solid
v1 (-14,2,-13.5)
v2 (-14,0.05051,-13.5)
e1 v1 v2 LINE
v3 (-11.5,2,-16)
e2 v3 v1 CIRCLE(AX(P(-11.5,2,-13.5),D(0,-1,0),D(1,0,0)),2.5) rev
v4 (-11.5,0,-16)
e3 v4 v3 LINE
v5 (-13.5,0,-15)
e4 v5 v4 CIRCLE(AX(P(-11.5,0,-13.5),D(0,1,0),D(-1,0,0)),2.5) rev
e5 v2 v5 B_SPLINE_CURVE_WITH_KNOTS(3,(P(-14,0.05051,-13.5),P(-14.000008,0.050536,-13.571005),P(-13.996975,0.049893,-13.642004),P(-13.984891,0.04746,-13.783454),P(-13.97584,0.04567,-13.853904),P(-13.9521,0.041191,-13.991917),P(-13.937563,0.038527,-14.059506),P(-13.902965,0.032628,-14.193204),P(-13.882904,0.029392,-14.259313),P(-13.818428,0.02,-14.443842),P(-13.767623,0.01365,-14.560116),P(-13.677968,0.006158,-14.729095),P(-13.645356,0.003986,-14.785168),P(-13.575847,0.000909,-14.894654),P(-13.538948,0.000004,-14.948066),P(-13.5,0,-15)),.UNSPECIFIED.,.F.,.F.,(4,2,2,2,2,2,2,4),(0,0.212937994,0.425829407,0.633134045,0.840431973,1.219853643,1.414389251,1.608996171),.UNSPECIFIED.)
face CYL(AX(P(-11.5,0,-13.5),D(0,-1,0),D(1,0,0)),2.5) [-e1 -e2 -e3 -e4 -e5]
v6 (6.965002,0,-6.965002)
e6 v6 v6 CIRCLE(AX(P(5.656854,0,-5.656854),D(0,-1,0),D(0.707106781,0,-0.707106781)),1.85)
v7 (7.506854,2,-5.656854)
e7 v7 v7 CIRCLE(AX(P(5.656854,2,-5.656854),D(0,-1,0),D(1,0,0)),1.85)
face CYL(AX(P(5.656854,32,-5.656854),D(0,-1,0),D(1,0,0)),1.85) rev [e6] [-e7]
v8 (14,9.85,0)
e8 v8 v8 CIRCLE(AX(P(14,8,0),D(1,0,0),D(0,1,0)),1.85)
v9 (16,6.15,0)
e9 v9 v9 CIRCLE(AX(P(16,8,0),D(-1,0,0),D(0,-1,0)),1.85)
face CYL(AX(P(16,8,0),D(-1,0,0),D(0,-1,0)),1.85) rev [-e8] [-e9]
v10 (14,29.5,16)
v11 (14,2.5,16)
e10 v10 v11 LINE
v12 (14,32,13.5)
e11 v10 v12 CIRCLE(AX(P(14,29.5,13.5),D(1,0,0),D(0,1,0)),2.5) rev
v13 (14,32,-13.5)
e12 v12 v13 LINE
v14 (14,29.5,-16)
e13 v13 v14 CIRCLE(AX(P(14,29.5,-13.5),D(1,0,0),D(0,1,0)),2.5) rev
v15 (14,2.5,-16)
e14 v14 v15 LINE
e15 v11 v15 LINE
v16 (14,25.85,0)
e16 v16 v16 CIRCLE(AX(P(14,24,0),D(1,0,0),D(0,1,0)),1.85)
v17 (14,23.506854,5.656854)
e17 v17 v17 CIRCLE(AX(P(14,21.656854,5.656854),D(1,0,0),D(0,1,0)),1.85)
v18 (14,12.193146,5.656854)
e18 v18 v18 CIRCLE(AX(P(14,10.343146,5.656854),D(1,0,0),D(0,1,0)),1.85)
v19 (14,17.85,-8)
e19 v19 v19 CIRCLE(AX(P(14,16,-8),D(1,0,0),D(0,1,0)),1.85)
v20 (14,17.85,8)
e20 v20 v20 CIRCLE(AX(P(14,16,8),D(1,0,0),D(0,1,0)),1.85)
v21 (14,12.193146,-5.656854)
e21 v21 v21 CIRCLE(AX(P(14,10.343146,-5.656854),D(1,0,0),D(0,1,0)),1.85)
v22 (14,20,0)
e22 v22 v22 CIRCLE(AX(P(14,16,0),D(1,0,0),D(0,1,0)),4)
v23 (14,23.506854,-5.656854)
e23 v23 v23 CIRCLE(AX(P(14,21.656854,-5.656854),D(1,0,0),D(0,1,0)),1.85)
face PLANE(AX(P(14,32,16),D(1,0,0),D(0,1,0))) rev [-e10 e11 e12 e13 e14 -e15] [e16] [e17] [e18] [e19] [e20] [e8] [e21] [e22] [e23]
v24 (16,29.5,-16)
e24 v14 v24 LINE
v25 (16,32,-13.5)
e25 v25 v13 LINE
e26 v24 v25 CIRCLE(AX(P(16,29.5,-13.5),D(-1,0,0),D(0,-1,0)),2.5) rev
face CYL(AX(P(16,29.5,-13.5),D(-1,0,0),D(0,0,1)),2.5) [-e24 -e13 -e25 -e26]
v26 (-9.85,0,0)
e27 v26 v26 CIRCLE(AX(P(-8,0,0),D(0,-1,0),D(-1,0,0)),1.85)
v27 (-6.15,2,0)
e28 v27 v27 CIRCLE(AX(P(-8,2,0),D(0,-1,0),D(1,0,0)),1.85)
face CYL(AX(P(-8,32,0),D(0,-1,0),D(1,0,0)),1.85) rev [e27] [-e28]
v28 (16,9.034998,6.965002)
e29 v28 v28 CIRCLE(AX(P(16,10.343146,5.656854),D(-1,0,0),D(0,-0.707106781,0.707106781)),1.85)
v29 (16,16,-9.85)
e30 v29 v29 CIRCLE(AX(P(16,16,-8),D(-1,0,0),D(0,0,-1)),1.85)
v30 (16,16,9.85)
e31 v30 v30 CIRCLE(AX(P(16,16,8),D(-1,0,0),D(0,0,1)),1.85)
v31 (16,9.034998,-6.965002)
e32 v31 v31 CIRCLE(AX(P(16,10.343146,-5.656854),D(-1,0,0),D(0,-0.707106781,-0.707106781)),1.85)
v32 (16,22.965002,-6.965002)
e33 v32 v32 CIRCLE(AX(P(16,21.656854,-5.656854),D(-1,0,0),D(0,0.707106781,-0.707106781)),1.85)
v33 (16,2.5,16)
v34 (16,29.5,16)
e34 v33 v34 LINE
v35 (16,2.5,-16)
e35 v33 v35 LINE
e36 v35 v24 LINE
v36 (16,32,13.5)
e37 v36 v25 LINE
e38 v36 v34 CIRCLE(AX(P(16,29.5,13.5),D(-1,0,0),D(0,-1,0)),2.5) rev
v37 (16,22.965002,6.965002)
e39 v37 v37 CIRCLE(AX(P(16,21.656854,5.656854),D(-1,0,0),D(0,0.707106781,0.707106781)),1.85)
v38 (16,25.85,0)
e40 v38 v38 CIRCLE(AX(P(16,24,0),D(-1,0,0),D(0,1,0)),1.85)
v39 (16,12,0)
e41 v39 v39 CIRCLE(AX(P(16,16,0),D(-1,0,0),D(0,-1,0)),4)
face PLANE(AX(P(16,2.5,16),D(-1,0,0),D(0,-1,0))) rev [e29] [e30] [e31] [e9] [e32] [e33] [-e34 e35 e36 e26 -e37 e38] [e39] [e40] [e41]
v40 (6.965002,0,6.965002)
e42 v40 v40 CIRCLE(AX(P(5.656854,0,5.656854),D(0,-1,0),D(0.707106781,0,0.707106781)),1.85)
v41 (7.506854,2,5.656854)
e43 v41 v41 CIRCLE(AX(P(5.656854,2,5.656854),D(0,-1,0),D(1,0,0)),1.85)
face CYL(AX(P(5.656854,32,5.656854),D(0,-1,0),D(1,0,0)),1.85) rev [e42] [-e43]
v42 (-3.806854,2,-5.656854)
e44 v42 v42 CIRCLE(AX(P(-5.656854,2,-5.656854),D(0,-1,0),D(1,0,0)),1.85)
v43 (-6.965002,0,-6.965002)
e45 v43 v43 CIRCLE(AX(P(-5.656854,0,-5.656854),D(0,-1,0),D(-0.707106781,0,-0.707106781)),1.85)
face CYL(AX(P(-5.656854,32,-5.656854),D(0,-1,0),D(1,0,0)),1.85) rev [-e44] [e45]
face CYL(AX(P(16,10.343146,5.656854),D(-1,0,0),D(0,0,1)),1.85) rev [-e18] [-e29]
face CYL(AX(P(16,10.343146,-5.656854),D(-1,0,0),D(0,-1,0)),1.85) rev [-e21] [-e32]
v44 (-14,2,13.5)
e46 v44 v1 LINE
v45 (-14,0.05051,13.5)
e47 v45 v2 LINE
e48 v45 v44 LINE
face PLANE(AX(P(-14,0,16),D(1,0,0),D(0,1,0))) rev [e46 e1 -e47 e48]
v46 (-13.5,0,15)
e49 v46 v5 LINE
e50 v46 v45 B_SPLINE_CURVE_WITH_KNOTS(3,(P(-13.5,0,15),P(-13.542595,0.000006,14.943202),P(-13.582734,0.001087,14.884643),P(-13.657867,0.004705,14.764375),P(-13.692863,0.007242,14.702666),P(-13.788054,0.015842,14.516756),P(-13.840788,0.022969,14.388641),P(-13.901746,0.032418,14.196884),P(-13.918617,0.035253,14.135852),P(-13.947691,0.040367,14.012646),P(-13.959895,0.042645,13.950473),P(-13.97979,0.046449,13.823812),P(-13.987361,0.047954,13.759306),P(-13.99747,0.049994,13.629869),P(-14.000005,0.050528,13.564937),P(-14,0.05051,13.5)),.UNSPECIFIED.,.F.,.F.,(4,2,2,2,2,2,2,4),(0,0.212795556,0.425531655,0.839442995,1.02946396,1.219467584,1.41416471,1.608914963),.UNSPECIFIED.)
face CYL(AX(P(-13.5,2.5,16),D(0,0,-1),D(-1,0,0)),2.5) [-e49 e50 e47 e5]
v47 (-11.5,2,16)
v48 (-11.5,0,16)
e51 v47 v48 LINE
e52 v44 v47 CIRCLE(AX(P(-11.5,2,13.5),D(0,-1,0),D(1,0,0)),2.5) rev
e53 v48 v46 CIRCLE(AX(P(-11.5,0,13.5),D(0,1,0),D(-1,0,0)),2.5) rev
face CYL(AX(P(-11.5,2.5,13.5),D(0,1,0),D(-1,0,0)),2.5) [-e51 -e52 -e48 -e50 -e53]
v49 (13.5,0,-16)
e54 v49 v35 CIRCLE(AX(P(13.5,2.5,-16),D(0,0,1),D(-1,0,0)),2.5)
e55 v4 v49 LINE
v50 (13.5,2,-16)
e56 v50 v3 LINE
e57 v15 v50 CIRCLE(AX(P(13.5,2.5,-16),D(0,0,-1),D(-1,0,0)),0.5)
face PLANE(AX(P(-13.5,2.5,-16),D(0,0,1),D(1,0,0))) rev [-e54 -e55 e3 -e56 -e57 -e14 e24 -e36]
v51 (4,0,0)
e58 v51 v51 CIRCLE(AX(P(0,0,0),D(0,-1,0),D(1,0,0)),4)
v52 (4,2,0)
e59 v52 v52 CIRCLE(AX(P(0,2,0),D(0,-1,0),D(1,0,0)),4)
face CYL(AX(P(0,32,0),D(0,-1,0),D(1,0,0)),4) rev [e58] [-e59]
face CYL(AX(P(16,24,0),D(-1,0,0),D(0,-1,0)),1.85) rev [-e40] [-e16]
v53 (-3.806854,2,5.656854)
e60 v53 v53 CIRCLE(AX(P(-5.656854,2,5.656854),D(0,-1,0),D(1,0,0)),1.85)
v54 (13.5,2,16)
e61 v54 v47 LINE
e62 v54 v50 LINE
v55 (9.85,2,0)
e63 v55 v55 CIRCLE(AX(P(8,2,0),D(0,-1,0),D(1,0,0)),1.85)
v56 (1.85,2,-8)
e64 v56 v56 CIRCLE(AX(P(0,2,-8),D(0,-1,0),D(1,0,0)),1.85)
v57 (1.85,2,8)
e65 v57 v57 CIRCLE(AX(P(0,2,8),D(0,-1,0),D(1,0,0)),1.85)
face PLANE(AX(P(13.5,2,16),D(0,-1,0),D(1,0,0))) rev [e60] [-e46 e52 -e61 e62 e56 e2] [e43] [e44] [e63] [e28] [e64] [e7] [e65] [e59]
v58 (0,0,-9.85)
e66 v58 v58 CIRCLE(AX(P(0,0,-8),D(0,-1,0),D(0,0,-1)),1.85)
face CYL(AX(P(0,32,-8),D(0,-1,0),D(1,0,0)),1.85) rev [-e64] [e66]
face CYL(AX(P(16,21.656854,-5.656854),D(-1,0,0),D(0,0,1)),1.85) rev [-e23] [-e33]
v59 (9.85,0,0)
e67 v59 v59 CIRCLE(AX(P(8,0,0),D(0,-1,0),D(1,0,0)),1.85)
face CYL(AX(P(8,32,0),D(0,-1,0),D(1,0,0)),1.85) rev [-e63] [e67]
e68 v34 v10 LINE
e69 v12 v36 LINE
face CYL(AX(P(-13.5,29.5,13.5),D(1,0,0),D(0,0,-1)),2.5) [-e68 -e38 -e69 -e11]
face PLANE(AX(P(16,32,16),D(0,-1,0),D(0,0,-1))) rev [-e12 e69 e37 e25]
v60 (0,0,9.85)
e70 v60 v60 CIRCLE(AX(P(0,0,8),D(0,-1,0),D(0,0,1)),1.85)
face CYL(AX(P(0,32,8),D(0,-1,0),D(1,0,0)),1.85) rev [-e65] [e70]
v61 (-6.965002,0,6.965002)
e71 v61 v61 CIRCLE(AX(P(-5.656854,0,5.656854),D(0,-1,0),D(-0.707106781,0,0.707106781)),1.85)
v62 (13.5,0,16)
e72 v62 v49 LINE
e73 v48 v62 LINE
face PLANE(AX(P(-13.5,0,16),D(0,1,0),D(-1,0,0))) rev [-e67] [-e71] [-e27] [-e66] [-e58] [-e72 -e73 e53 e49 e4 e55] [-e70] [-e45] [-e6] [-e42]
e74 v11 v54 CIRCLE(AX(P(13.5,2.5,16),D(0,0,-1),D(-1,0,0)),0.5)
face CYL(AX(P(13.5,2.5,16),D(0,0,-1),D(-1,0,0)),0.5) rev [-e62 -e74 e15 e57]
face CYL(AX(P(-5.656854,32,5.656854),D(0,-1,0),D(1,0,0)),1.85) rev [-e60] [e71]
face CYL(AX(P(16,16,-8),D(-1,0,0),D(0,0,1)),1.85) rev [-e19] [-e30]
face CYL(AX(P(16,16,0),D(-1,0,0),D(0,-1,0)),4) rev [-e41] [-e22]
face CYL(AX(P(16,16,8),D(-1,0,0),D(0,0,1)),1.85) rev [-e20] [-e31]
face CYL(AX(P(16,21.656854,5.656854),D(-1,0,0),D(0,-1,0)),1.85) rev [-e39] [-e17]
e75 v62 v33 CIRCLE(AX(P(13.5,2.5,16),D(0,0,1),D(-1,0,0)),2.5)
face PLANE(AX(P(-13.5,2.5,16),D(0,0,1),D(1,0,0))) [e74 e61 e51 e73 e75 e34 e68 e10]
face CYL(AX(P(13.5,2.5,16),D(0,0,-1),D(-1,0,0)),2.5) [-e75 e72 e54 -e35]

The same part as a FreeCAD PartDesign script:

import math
import FreeCAD as App
import Part
import Sketcher

V = App.Vector
Q = App.Units.Quantity


def edges_at(feature, points):
    """Names of the edges that pass closest to the given points."""
    edges = feature.Shape.Edges
    near = lambda p: min(range(len(edges)), key=lambda i: edges[i].distToShape(Part.Vertex(*p))[0])
    return sorted({f"Edge{near(p) + 1}" for p in points})


def add_polygon(sketch, points):
    """Adds a closed chain of lines whose ends are joined by coincident constraints."""
    first, n = sketch.GeometryCount, len(points)
    for a, b in zip(points, points[1:] + points[:1]):
        sketch.addGeometry(Part.LineSegment(App.Vector(*a, 0), App.Vector(*b, 0)), False)
    for i in range(n):
        sketch.addConstraint(Sketcher.Constraint("Coincident", first + i, 2, first + (i + 1) % n, 1))

doc = App.newDocument("Part")
body = doc.addObject("PartDesign::Body", "Body")

# Sketch on XY plane
sketch1 = body.newObject("Sketcher::SketchObject", "Sketch")
sketch1.AttachmentSupport = (doc.getObject("XY_Plane"), [""])
sketch1.MapMode = "FlatFace"
sketch1.addGeometry(Part.LineSegment(V(-13.5, 0, 0), V(13.5, 0, 0)), False)
sketch1.addGeometry(Part.ArcOfCircle(Part.Circle(V(13.5, 2.5, 0), V(0, 0, 1), 2.5), math.radians(-90), math.radians(0)), False)
sketch1.addGeometry(Part.LineSegment(V(16, 2.5, 0), V(16, 32, 0)), False)
sketch1.addGeometry(Part.LineSegment(V(16, 32, 0), V(14, 32, 0)), False)
sketch1.addGeometry(Part.LineSegment(V(14, 32, 0), V(14, 2.5, 0)), False)
sketch1.addGeometry(Part.ArcOfCircle(Part.Circle(V(13.5, 2.5, 0), V(0, 0, 1), 0.5), math.radians(-90), math.radians(0)), False)
sketch1.addGeometry(Part.LineSegment(V(13.5, 2, 0), V(-13.5, 2, 0)), False)
sketch1.addGeometry(Part.ArcOfCircle(Part.Circle(V(-13.5, 2.5, 0), V(0, 0, 1), 0.5), math.radians(180), math.radians(270)), False)
sketch1.addGeometry(Part.LineSegment(V(-14, 2.5, 0), V(-14, 32, 0)), False)
sketch1.addGeometry(Part.LineSegment(V(-14, 32, 0), V(-16, 32, 0)), False)
sketch1.addGeometry(Part.LineSegment(V(-16, 32, 0), V(-16, 2.5, 0)), False)
sketch1.addGeometry(Part.ArcOfCircle(Part.Circle(V(-13.5, 2.5, 0), V(0, 0, 1), 2.5), math.radians(180), math.radians(270)), False)
sketch1.addConstraint(Sketcher.Constraint("Tangent", 0, 2, 1, 1))
sketch1.addConstraint(Sketcher.Constraint("Tangent", 1, 2, 2, 1))
sketch1.addConstraint(Sketcher.Constraint("Coincident", 2, 2, 3, 1))
sketch1.addConstraint(Sketcher.Constraint("Coincident", 3, 2, 4, 1))
sketch1.addConstraint(Sketcher.Constraint("Tangent", 4, 2, 5, 2))
sketch1.addConstraint(Sketcher.Constraint("Tangent", 5, 1, 6, 1))
sketch1.addConstraint(Sketcher.Constraint("Tangent", 6, 2, 7, 2))
sketch1.addConstraint(Sketcher.Constraint("Tangent", 7, 1, 8, 1))
sketch1.addConstraint(Sketcher.Constraint("Coincident", 8, 2, 9, 1))
sketch1.addConstraint(Sketcher.Constraint("Coincident", 9, 2, 10, 1))
sketch1.addConstraint(Sketcher.Constraint("Tangent", 10, 2, 11, 1))
sketch1.addConstraint(Sketcher.Constraint("Tangent", 11, 2, 0, 1))
sketch1.addConstraint(Sketcher.Constraint("Horizontal", 0))
sketch1.addConstraint(Sketcher.Constraint("Vertical", 2))
sketch1.addConstraint(Sketcher.Constraint("Horizontal", 3))
sketch1.addConstraint(Sketcher.Constraint("Vertical", 4))
sketch1.addConstraint(Sketcher.Constraint("Horizontal", 6))
sketch1.addConstraint(Sketcher.Constraint("Vertical", 8))
sketch1.addConstraint(Sketcher.Constraint("Horizontal", 9))
sketch1.addConstraint(Sketcher.Constraint("Vertical", 10))
sketch1.addConstraint(Sketcher.Constraint("Coincident", 5, 3, 1, 3))
sketch1.addConstraint(Sketcher.Constraint("Coincident", 11, 3, 7, 3))
sketch1.addConstraint(Sketcher.Constraint("Equal", 5, 7))
sketch1.addConstraint(Sketcher.Constraint("Symmetric", 0, 2, 11, 2, -1, 1))
sketch1.addConstraint(Sketcher.Constraint("Horizontal", 3, 2, 8, 2))
sketch1.addConstraint(Sketcher.Constraint("Radius", 1, Q("2.5 mm")))
sketch1.addConstraint(Sketcher.Constraint("Radius", 5, Q("0.5 mm")))
sketch1.addConstraint(Sketcher.Constraint("DistanceX", 0, 1, 0, 2, Q("27 mm")))
sketch1.addConstraint(Sketcher.Constraint("DistanceY", 2, 1, 2, 2, Q("29.5 mm")))
pad1 = body.newObject("PartDesign::Pad", "Pad")
pad1.Profile = sketch1
pad1.Length = 32
pad1.Midplane = True
doc.recompute()

fillet = body.newObject("PartDesign::Fillet", "Fillet")
fillet.Base = (pad1, edges_at(pad1, [
    (-15, 32, -16),
    (-15, 32, 16),
    (15, 32, -16),
    (15, 32, 16),
]))
fillet.Radius = 2.5

# Sketch on XZ plane
sketch2 = body.newObject("Sketcher::SketchObject", "Sketch001")
sketch2.AttachmentSupport = (doc.getObject("XZ_Plane"), [""])
sketch2.MapMode = "FlatFace"
sketch2.addGeometry(Part.Circle(V(0, 0, 0), V(0, 0, 1), 4), False)
sketch2.addConstraint(Sketcher.Constraint("Coincident", 0, 3, -1, 1))
sketch2.addConstraint(Sketcher.Constraint("Diameter", 0, Q("8 mm")))
pocket1 = body.newObject("PartDesign::Pocket", "Pocket")
pocket1.Profile = sketch2
pocket1.Type = "ThroughAll"

# Sketch on YZ plane
sketch3 = body.newObject("Sketcher::SketchObject", "Sketch002")
sketch3.AttachmentSupport = (doc.getObject("YZ_Plane"), [""])
sketch3.MapMode = "FlatFace"
sketch3.AttachmentOffset = App.Placement(V(0, 0, -16), App.Rotation())
sketch3.addGeometry(Part.Circle(V(16, 0, 0), V(0, 0, 1), 4), False)
sketch3.addConstraint(Sketcher.Constraint("PointOnObject", 0, 3, -1))
sketch3.addConstraint(Sketcher.Constraint("Diameter", 0, Q("8 mm")))
sketch3.addConstraint(Sketcher.Constraint("DistanceX", -1, 1, 0, 3, Q("16 mm")))
pocket2 = body.newObject("PartDesign::Pocket", "Pocket001")
pocket2.Profile = sketch3
pocket2.Type = "ThroughAll"
pocket2.Reversed = True

# Sketch on YZ plane
sketch4 = body.newObject("Sketcher::SketchObject", "Sketch003")
sketch4.AttachmentSupport = (doc.getObject("YZ_Plane"), [""])
sketch4.MapMode = "FlatFace"
sketch4.AttachmentOffset = App.Placement(V(0, 0, -16), App.Rotation())
sketch4.addGeometry(Part.Circle(V(8, 0, 0), V(0, 0, 1), 1.9), False)
sketch4.addConstraint(Sketcher.Constraint("PointOnObject", 0, 3, -1))
sketch4.addConstraint(Sketcher.Constraint("Diameter", 0, Q("3.7 mm")))
sketch4.addConstraint(Sketcher.Constraint("DistanceX", -1, 1, 0, 3, Q("8 mm")))
pocket3 = body.newObject("PartDesign::Pocket", "Pocket002")
pocket3.Profile = sketch4
pocket3.Type = "ThroughAll"
pocket3.Reversed = True

# Sketch on XZ plane
sketch5 = body.newObject("Sketcher::SketchObject", "Sketch004")
sketch5.AttachmentSupport = (doc.getObject("XZ_Plane"), [""])
sketch5.MapMode = "FlatFace"
sketch5.addGeometry(Part.Circle(V(8, 0, 0), V(0, 0, 1), 1.9), False)
sketch5.addConstraint(Sketcher.Constraint("PointOnObject", 0, 3, -1))
sketch5.addConstraint(Sketcher.Constraint("Diameter", 0, Q("3.7 mm")))
sketch5.addConstraint(Sketcher.Constraint("DistanceX", -1, 1, 0, 3, Q("8 mm")))
pocket4 = body.newObject("PartDesign::Pocket", "Pocket003")
pocket4.Profile = sketch5
pocket4.Type = "ThroughAll"
doc.recompute()

polarpattern = body.newObject("PartDesign::PolarPattern", "PolarPattern")
polarpattern.Originals = [pocket4]
polarpattern.Axis = (doc.getObject("Y_Axis"), [""])
polarpattern.Angle = 360
polarpattern.Occurrences = 8
body.Tip = polarpattern
doc.recompute()

datumline = body.newObject("PartDesign::Line", "DatumLine")
datumline.Placement = App.Placement(V(0, 16, 0), App.Rotation(V(0, 0, 1), V(1, 0, 0)))
polarpattern2 = body.newObject("PartDesign::PolarPattern", "PolarPattern001")
polarpattern2.Originals = [pocket3]
polarpattern2.Axis = (datumline, [""])
polarpattern2.Angle = 360
polarpattern2.Occurrences = 8
body.Tip = polarpattern2

# Sketch on XY plane
sketch6 = body.newObject("Sketcher::SketchObject", "Sketch005")
sketch6.AttachmentSupport = (doc.getObject("XY_Plane"), [""])
sketch6.MapMode = "FlatFace"
sketch6.AttachmentOffset = App.Placement(V(0, 0, -16), App.Rotation())
add_polygon(sketch6, [(-14, -1.1), (-16.9, -1.1), (-16.9, 33.2), (-14, 33.2)])  # lines 0-3
sketch6.addConstraint(Sketcher.Constraint("Horizontal", 0))
sketch6.addConstraint(Sketcher.Constraint("Vertical", 1))
sketch6.addConstraint(Sketcher.Constraint("Horizontal", 2))
sketch6.addConstraint(Sketcher.Constraint("Vertical", 3))
sketch6.addConstraint(Sketcher.Constraint("DistanceX", 2, 2, -1, 1, Q("14 mm")))
sketch6.addConstraint(Sketcher.Constraint("DistanceX", 0, 2, 0, 1, Q("2.915765 mm")))
sketch6.addConstraint(Sketcher.Constraint("DistanceY", 1, 1, 1, 2, Q("34.330275 mm")))
sketch6.addConstraint(Sketcher.Constraint("DistanceY", -1, 1, 1, 2, Q("33.185919 mm")))
pocket5 = body.newObject("PartDesign::Pocket", "Pocket004")
pocket5.Profile = sketch6
pocket5.Type = "ThroughAll"
pocket5.Reversed = True

# Sketch on XY plane
sketch7 = body.newObject("Sketcher::SketchObject", "Sketch006")
sketch7.AttachmentSupport = (doc.getObject("XY_Plane"), [""])
sketch7.MapMode = "FlatFace"
sketch7.AttachmentOffset = App.Placement(V(0, 0, -16), App.Rotation())
add_polygon(sketch7, [(-13.5, 2), (-15.3, 2), (-14.4, 3.9)])  # lines 0-2
sketch7.addConstraint(Sketcher.Constraint("Horizontal", 0))
sketch7.addConstraint(Sketcher.Constraint("Equal", 1, 2))
sketch7.addConstraint(Sketcher.Constraint("DistanceY", -1, 1, 0, 2, Q("2 mm")))
sketch7.addConstraint(Sketcher.Constraint("DistanceX", 2, 2, -1, 1, Q("13.5 mm")))
sketch7.addConstraint(Sketcher.Constraint("DistanceX", 0, 2, 0, 1, Q("1.792334 mm")))
sketch7.addConstraint(Sketcher.Constraint("Distance", 1, Q("2.122606 mm")))
pocket6 = body.newObject("PartDesign::Pocket", "Pocket005")
pocket6.Profile = sketch7
pocket6.Type = "ThroughAll"
pocket6.Reversed = True
doc.recompute()

fillet2 = body.newObject("PartDesign::Fillet", "Fillet001")
fillet2.Base = (pocket6, edges_at(pocket6, [(-14, 1.025, 16), (-14, 1.025, -16)]))
fillet2.Radius = 2.5

doc.recompute()
